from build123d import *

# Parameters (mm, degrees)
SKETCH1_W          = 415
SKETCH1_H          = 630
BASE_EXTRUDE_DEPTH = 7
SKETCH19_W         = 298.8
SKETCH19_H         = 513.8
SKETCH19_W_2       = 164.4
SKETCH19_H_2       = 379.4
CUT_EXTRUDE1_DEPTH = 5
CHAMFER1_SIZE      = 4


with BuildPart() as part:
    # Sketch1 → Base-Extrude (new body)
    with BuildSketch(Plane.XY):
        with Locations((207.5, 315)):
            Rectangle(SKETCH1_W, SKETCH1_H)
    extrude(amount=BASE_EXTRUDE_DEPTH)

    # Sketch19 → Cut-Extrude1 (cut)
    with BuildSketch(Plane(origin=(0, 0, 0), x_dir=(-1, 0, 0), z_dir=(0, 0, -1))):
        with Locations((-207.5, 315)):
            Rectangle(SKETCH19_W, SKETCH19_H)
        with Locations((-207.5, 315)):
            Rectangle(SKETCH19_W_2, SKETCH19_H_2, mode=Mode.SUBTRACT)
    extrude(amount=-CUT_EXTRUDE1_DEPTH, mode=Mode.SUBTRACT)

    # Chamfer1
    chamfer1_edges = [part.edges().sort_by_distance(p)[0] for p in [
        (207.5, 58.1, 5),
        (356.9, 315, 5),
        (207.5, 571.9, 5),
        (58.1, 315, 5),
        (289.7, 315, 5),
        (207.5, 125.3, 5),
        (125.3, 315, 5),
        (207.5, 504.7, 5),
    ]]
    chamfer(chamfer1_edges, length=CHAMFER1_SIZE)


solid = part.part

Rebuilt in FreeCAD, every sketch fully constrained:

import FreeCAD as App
import Part
import Sketcher
from FreeCAD import Vector


def edges_at(feature, points):
    """Names of the edges that pass closest to the given points."""
    edges = feature.Shape.Edges
    near = lambda p: min(range(len(edges)), key=lambda i: edges[i].distToShape(Part.Vertex(*p))[0])
    return sorted({f"Edge{near(p) + 1}" for p in points})


def add_polygon(sketch, points):
    """Adds a closed chain of lines whose ends are joined by coincident constraints."""
    first, n = sketch.GeometryCount, len(points)
    for a, b in zip(points, points[1:] + points[:1]):
        sketch.addGeometry(Part.LineSegment(App.Vector(*a, 0), App.Vector(*b, 0)), False)
    for i in range(n):
        sketch.addConstraint(Sketcher.Constraint("Coincident", first + i, 2, first + (i + 1) % n, 1))

doc = App.newDocument("Part")
body = doc.addObject("PartDesign::Body", "Body")

sketch1 = body.newObject("Sketcher::SketchObject", "Sketch")
sketch1.AttachmentSupport = (doc.getObject("XY_Plane"), [""])
sketch1.MapMode = "FlatFace"
add_polygon(sketch1, [(0, 630), (0, 0), (415, 0), (415, 630)])
sketch1.addConstraint([
    Sketcher.Constraint("Vertical", 0),
    Sketcher.Constraint("Horizontal", 1),
    Sketcher.Constraint("Vertical", 2),
    Sketcher.Constraint("Horizontal", 3),
    Sketcher.Constraint("Coincident", 0, 2, -1, 1),
    Sketcher.Constraint("DistanceX", 1, 1, 1, 2, 415.0),
    Sketcher.Constraint("DistanceY", 0, 2, 0, 1, 630.0),
])
pad1 = body.newObject("PartDesign::Pad", "Pad")
pad1.Profile = sketch1
pad1.Length = 7

sketch2 = body.newObject("Sketcher::SketchObject", "Sketch001")
sketch2.AttachmentSupport = (doc.getObject("XY_Plane"), [""])
sketch2.MapMode = "FlatFace"
add_polygon(sketch2, [(357, 572), (357, 58), (58, 58), (58, 572)])
add_polygon(sketch2, [(125, 125), (290, 125), (290, 505), (125, 505)])
sketch2.addConstraint([
    Sketcher.Constraint("Vertical", 0),
    Sketcher.Constraint("Horizontal", 1),
    Sketcher.Constraint("Vertical", 2),
    Sketcher.Constraint("Horizontal", 3),
    Sketcher.Constraint("Horizontal", 4),
    Sketcher.Constraint("Vertical", 5),
    Sketcher.Constraint("Horizontal", 6),
    Sketcher.Constraint("Vertical", 7),
    Sketcher.Constraint("DistanceX", 1, 2, 1, 1, 298.8),
    Sketcher.Constraint("DistanceX", 4, 1, 4, 2, 164.4),
    Sketcher.Constraint("DistanceY", 0, 2, 0, 1, 513.8),
    Sketcher.Constraint("DistanceY", 5, 1, 5, 2, 379.4),
    Sketcher.Constraint("DistanceX", -1, 1, 0, 2, 356.9),
    Sketcher.Constraint("DistanceY", -1, 1, 0, 2, 58.1),
    Sketcher.Constraint("DistanceX", -1, 1, 4, 2, 289.7),
    Sketcher.Constraint("DistanceY", -1, 1, 4, 2, 125.3),
])
pocket1 = body.newObject("PartDesign::Pocket", "Pocket")
pocket1.Profile = sketch2
pocket1.Length = 5
pocket1.Reversed = True
doc.recompute()

chamfer = body.newObject("PartDesign::Chamfer", "Chamfer")
chamfer.Base = (pocket1, edges_at(pocket1, [
    (207.5, 58.1, 5),
    (356.9, 315, 5),
    (207.5, 571.9, 5),
    (58.1, 315, 5),
    (289.7, 315, 5),
    (207.5, 125.3, 5),
    (125.3, 315, 5),
    (207.5, 504.7, 5),
]))
chamfer.Size = 4

doc.recompute()
